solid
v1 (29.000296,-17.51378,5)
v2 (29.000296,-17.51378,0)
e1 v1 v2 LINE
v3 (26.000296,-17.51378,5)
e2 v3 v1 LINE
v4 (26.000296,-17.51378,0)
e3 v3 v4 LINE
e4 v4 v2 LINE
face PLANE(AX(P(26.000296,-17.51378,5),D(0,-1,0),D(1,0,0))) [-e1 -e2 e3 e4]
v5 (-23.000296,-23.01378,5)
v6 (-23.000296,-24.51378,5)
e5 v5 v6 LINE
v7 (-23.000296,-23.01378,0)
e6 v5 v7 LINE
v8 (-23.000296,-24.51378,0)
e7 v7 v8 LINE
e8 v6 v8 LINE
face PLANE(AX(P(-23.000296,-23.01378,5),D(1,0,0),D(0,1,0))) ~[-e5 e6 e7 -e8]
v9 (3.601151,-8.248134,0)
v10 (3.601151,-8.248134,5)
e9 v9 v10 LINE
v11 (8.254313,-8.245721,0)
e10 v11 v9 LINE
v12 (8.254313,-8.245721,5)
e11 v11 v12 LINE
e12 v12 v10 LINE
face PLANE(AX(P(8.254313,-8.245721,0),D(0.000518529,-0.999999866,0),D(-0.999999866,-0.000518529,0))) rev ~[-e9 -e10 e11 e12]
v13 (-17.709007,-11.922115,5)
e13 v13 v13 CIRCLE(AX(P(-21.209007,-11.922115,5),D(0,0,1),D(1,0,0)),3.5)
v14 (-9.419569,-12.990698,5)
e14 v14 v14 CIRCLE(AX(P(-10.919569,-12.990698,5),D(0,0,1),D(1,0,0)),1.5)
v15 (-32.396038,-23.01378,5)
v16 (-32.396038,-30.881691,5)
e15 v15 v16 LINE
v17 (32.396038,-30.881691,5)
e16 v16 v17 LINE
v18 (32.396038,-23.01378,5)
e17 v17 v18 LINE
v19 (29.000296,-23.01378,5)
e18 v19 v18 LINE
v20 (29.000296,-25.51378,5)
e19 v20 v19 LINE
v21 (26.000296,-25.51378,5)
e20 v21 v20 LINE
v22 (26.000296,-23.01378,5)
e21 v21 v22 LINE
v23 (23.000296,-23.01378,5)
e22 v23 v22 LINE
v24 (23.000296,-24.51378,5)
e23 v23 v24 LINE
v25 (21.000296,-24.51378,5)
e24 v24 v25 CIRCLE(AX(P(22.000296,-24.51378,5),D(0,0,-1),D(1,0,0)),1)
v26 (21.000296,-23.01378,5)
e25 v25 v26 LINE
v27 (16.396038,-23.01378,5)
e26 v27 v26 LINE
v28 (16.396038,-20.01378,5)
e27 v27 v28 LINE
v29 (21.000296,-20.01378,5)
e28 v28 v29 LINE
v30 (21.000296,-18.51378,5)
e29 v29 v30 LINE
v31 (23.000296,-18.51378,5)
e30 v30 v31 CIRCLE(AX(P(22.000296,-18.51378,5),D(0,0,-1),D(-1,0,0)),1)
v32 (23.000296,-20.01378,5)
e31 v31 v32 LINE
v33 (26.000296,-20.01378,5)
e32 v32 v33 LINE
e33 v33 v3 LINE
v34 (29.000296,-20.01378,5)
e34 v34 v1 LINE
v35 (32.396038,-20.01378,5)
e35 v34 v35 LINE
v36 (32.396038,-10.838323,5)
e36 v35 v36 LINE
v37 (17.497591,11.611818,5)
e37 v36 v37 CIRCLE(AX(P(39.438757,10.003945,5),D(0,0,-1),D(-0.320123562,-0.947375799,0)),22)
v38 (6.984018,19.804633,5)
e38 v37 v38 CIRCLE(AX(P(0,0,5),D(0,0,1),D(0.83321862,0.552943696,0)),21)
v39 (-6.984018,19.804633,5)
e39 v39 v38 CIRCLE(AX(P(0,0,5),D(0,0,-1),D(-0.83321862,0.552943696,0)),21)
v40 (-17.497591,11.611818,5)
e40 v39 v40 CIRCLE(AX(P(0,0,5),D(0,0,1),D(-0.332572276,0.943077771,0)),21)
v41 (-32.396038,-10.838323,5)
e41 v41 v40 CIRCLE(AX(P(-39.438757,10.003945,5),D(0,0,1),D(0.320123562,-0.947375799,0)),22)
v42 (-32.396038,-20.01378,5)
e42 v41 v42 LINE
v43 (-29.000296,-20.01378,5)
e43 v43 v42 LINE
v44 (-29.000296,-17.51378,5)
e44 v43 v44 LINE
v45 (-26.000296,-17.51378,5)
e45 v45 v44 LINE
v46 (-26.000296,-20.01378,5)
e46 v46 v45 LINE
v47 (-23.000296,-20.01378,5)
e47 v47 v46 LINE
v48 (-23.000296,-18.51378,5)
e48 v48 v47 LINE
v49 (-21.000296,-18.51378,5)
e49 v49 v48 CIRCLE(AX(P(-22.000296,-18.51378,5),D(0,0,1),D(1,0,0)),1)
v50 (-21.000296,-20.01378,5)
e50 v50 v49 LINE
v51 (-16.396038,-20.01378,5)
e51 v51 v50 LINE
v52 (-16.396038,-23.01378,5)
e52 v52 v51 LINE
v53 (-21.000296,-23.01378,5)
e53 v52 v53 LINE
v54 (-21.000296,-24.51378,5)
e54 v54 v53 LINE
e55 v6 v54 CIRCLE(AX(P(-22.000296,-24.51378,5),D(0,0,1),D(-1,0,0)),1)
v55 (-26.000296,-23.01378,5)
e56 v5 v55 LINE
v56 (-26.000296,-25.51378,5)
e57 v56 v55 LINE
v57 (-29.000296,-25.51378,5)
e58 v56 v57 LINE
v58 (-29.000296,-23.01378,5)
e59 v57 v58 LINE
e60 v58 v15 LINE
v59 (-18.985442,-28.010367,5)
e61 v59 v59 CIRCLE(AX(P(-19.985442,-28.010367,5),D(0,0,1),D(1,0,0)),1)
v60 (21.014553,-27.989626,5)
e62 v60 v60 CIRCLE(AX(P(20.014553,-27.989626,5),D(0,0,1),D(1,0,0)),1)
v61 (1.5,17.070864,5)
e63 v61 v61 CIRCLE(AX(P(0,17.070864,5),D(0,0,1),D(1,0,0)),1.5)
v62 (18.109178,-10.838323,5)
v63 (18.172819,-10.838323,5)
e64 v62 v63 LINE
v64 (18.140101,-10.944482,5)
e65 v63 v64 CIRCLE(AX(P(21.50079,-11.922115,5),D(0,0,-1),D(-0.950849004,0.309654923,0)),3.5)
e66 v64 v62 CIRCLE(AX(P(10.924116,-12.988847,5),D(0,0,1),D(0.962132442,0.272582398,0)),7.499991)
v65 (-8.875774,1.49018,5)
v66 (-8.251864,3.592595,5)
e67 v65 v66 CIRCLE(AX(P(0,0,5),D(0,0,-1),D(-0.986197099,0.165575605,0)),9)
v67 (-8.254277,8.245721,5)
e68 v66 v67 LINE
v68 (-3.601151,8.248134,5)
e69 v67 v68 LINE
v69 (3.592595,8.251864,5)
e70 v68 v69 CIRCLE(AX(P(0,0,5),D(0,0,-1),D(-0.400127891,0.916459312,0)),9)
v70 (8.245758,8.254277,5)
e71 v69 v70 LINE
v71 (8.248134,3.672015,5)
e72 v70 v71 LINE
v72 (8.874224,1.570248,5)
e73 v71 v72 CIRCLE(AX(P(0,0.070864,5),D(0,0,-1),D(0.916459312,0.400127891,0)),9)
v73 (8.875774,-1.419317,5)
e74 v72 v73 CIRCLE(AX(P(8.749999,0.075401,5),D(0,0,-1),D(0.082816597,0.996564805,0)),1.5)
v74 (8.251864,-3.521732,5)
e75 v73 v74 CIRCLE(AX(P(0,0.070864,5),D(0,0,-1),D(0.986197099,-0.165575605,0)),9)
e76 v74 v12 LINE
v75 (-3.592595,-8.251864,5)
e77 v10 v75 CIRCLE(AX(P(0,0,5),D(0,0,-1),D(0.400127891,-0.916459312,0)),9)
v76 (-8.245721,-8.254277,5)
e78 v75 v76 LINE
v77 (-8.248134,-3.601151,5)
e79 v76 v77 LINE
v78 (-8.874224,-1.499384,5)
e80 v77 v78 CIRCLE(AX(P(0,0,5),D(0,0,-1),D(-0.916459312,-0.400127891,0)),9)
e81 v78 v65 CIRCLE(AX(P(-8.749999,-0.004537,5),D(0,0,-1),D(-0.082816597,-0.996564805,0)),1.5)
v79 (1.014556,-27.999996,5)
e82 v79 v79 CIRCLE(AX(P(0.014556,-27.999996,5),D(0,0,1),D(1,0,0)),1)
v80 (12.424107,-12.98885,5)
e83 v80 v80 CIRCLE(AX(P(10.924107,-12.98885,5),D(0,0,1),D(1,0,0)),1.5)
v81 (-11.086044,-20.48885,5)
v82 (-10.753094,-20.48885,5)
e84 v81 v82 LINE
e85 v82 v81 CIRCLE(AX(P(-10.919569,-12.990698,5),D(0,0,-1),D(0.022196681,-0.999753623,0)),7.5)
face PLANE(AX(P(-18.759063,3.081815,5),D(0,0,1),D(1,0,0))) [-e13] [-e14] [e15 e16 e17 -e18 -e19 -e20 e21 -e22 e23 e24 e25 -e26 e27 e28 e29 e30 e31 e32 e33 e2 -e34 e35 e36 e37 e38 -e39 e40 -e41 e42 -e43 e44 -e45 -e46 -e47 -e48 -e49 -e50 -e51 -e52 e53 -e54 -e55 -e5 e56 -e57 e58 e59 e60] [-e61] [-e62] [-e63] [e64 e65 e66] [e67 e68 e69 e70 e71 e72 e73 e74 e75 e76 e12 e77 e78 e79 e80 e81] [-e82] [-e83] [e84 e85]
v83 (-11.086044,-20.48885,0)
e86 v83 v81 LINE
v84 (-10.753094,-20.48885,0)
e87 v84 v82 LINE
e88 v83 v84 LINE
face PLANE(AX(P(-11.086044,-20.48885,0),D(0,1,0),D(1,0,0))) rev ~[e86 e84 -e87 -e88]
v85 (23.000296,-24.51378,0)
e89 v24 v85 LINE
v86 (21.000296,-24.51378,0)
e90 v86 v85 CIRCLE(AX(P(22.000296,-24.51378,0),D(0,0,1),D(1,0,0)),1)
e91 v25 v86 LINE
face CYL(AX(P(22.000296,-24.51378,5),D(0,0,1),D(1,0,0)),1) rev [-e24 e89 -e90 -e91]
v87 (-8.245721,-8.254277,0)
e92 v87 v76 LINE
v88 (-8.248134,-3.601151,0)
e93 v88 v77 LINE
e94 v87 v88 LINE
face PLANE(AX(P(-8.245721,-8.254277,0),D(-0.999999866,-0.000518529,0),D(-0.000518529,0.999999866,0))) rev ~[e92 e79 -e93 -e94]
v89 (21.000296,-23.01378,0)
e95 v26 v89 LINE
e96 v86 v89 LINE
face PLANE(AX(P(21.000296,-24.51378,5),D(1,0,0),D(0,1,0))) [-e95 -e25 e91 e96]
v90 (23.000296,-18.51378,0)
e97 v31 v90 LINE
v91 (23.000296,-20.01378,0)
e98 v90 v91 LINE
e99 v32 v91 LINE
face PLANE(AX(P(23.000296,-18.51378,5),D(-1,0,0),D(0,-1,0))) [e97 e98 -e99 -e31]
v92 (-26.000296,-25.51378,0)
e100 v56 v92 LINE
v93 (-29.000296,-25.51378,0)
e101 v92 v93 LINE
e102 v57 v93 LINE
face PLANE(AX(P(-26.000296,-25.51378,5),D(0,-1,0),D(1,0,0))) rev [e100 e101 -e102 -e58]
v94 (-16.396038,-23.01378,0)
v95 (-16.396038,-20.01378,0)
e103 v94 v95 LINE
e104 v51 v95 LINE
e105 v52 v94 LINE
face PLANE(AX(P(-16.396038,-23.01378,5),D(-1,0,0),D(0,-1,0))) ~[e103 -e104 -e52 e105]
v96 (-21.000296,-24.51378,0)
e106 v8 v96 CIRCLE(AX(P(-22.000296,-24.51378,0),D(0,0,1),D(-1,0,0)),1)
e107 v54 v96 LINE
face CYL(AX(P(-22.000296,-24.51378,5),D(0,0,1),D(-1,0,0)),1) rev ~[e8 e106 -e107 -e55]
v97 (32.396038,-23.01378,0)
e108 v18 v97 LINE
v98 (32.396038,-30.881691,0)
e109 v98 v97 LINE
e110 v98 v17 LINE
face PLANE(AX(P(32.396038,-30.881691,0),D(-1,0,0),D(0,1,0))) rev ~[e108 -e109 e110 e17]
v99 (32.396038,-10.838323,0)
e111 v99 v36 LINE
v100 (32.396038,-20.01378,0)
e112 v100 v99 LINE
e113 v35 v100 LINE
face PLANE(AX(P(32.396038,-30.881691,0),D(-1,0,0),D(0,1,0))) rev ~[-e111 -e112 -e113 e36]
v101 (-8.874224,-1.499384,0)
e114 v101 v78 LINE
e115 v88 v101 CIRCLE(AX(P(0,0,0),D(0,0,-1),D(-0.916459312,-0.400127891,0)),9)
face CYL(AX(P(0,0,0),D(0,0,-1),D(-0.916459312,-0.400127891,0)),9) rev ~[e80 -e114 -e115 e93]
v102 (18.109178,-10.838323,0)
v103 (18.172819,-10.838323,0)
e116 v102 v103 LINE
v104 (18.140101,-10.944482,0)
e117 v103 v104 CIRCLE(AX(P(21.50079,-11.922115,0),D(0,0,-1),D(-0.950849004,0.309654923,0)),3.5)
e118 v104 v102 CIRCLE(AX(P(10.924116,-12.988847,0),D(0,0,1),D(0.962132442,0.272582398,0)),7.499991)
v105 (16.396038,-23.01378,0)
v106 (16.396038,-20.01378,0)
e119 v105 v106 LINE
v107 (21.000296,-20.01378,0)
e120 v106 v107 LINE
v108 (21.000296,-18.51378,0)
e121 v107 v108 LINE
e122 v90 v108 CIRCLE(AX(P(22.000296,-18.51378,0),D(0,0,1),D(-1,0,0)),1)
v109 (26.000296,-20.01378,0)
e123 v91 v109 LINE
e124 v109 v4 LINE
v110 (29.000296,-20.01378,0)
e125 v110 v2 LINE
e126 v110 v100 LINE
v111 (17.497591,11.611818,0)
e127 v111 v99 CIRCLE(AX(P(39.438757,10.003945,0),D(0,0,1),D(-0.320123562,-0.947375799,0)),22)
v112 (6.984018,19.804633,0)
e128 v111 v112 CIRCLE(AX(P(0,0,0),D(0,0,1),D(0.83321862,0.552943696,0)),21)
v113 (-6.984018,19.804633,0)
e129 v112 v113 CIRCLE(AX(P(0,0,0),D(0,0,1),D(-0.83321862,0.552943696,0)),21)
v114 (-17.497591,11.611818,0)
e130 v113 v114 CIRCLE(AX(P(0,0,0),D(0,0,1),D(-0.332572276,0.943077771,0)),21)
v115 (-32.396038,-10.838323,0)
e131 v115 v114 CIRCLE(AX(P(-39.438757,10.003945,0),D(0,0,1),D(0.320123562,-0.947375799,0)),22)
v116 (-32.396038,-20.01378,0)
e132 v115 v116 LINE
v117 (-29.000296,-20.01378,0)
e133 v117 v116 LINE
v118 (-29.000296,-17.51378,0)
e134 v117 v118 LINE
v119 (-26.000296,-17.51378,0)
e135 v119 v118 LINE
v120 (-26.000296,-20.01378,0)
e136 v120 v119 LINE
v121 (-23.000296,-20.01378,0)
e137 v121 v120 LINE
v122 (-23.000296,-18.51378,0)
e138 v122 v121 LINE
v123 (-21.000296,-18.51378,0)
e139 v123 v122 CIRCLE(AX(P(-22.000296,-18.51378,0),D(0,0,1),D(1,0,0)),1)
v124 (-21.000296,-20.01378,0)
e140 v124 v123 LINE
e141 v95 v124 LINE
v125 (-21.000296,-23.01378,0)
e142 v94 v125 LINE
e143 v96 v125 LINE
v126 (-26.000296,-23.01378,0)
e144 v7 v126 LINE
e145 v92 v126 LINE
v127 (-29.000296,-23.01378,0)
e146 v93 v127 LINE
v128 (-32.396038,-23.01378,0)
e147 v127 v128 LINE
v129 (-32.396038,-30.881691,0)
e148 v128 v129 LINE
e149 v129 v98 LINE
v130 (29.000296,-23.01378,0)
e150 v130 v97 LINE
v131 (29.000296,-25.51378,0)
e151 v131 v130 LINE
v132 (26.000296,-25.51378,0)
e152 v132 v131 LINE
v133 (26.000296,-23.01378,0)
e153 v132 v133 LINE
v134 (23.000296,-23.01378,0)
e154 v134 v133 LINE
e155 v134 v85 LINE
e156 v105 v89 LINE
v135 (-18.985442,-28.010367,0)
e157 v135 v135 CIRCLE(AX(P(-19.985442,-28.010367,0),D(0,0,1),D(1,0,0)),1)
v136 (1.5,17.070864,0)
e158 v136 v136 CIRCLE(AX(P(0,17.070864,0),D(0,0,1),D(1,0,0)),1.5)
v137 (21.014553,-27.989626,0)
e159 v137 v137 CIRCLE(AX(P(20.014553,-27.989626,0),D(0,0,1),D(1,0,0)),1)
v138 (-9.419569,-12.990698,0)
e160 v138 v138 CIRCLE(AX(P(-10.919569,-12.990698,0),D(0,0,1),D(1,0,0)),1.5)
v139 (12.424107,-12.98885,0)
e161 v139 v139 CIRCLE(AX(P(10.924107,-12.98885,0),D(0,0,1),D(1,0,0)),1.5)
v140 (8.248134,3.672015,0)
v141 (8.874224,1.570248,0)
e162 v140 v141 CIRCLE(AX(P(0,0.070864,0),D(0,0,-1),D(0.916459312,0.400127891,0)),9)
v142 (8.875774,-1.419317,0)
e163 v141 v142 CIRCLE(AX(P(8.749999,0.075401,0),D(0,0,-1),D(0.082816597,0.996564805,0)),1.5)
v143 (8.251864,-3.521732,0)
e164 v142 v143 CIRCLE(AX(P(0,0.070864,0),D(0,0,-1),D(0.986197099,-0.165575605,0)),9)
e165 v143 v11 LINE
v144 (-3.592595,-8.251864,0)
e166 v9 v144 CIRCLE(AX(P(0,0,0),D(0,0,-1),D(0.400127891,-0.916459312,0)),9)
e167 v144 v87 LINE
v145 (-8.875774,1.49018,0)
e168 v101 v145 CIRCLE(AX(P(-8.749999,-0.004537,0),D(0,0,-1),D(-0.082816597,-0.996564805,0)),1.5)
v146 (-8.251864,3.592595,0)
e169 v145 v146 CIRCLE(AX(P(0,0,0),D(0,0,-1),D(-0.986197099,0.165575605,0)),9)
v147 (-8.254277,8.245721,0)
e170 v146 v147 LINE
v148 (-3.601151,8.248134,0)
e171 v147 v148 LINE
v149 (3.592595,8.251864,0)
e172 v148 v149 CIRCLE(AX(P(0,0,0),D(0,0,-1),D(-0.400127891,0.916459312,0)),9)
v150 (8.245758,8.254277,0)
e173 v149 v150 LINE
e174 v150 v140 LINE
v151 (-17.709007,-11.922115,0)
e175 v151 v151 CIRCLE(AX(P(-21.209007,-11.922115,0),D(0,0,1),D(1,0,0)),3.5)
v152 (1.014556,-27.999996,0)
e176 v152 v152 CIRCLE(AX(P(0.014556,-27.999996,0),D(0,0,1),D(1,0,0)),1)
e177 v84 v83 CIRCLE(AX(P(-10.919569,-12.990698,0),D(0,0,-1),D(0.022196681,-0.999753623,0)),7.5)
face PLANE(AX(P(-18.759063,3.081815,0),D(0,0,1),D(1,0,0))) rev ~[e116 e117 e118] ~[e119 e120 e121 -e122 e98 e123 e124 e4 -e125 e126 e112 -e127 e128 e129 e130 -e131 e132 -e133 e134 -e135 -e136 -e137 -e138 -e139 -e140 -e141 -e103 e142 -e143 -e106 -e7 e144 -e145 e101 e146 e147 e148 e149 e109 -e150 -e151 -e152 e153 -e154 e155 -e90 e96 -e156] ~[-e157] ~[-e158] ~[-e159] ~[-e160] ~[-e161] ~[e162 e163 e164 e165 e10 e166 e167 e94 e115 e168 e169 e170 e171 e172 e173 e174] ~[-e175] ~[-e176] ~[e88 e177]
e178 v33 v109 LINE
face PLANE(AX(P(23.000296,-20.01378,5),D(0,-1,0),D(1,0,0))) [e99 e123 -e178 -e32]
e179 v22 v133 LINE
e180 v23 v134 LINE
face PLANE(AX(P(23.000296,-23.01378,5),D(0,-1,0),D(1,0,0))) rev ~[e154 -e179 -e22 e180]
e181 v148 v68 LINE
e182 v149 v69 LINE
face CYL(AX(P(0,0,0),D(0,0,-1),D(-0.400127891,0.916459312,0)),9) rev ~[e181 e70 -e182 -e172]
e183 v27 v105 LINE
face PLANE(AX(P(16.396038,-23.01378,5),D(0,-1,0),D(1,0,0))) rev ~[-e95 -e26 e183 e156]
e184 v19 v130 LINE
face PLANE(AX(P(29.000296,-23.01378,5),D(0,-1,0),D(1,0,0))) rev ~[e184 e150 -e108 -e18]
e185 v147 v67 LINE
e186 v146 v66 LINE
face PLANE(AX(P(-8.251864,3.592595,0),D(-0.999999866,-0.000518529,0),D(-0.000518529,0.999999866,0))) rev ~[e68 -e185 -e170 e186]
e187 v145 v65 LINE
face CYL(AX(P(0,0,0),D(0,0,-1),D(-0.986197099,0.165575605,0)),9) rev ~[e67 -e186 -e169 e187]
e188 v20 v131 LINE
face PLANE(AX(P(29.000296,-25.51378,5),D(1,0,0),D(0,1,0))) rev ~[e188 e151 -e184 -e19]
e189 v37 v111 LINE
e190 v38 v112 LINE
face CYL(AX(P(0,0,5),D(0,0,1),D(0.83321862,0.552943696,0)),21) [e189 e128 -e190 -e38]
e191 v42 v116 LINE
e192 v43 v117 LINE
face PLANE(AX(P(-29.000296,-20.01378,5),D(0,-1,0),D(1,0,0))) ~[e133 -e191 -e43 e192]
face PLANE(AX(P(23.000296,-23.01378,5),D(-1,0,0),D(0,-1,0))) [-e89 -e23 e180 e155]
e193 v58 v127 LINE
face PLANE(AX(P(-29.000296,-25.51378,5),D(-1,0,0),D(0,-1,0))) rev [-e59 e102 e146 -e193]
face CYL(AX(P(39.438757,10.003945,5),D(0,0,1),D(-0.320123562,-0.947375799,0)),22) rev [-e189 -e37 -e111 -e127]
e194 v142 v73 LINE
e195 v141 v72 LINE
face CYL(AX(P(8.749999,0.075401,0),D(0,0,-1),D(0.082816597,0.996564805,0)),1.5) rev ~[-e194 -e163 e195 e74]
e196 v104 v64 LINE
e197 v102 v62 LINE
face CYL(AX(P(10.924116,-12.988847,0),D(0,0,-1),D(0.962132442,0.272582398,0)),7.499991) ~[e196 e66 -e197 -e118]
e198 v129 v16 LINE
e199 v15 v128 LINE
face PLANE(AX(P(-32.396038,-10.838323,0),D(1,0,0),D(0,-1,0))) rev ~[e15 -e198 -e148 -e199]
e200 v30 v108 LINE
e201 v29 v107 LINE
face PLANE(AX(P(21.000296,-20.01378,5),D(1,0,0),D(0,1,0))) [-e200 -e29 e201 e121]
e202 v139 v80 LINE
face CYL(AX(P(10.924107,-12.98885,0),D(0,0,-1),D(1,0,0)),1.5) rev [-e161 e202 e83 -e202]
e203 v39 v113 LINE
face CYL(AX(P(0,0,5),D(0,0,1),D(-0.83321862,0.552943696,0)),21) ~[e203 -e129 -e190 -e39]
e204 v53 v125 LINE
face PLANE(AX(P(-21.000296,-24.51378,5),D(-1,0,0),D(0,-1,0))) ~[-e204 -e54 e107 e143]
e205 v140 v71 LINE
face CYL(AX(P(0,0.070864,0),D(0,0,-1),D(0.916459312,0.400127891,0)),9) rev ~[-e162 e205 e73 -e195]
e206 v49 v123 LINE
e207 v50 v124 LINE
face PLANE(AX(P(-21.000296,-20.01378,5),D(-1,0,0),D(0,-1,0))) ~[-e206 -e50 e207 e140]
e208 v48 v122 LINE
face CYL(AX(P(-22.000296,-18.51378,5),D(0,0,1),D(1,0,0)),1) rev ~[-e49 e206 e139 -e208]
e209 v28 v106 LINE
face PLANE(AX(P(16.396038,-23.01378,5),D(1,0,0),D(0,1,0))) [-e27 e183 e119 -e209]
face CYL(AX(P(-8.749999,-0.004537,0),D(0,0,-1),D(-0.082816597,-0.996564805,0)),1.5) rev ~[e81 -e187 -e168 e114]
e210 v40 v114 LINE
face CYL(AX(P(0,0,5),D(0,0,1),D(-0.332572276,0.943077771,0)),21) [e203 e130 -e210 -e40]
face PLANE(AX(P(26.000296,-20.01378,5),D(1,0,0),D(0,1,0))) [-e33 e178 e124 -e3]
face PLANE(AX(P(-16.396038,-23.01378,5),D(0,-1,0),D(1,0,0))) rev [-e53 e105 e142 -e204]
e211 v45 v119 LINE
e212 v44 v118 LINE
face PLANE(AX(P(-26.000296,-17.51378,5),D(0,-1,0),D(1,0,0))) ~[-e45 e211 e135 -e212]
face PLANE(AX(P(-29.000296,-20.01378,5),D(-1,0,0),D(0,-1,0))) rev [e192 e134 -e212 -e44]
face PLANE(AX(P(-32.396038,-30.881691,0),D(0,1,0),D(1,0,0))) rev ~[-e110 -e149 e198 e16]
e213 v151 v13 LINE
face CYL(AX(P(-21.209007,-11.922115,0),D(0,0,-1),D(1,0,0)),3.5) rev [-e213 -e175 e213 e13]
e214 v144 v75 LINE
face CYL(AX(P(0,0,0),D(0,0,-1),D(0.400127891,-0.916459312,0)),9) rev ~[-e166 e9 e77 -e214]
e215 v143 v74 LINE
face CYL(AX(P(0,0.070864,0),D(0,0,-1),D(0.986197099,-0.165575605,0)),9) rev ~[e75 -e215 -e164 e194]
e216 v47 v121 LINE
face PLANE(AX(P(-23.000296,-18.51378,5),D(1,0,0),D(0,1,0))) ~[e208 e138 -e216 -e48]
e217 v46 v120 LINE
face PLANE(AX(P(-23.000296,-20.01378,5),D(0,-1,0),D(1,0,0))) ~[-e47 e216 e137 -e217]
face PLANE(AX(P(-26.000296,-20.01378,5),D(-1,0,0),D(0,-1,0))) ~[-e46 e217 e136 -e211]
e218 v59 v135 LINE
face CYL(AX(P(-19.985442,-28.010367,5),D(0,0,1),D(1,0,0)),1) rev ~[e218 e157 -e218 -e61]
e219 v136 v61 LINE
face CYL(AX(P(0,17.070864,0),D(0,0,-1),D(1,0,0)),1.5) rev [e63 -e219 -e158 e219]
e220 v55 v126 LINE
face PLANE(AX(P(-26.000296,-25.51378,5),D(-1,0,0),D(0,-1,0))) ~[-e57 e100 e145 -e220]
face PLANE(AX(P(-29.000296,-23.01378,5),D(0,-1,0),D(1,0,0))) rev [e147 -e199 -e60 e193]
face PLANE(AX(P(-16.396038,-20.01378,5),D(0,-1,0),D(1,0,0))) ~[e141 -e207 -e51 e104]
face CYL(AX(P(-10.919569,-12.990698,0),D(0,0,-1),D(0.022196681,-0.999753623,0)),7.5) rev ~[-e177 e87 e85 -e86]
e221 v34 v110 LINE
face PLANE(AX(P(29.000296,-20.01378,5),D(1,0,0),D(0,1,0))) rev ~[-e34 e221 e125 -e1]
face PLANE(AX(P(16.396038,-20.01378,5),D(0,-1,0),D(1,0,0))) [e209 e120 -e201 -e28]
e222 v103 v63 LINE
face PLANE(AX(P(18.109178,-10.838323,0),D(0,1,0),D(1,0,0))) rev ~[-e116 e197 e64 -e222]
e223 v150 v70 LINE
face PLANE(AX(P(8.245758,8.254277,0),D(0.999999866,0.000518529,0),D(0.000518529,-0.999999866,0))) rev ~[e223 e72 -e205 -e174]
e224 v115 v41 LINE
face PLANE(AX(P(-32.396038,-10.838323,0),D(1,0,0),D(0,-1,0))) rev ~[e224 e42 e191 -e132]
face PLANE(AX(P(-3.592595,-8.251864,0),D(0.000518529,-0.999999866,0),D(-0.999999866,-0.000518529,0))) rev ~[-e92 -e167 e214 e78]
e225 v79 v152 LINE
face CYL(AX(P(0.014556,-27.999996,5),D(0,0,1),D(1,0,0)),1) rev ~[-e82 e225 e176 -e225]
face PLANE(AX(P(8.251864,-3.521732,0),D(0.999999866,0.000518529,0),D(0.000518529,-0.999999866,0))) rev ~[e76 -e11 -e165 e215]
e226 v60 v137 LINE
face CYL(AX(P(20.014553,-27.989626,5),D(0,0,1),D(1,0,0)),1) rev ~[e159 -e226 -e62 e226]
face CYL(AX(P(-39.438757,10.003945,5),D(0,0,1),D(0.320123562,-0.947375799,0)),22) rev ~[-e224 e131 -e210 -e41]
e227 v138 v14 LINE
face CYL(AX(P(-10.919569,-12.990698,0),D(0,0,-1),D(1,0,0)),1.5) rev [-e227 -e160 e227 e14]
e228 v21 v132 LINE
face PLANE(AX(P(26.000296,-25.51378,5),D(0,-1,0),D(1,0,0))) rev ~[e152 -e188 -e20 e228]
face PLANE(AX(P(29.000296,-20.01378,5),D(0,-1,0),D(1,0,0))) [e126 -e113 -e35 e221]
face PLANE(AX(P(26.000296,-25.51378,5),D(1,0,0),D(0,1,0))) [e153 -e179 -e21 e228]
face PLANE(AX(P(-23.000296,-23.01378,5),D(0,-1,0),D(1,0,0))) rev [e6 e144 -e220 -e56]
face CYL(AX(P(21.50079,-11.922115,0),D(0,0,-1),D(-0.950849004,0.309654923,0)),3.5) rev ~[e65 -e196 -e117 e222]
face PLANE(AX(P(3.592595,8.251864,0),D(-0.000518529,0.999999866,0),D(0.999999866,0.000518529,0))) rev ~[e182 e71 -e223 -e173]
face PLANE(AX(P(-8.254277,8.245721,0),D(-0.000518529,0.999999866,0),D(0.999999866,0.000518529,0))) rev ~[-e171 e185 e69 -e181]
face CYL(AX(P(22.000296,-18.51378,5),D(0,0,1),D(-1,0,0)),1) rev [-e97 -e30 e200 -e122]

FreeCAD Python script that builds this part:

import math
import FreeCAD as App
import Part
import Sketcher
Q = App.Units.Quantity


def add_polygon(sketch, points):
    """Adds a closed chain of lines whose ends are joined by coincident constraints."""
    first, n = sketch.GeometryCount, len(points)
    for a, b in zip(points, points[1:] + points[:1]):
        sketch.addGeometry(Part.LineSegment(App.Vector(*a, 0), App.Vector(*b, 0)), False)
    for i in range(n):
        sketch.addConstraint(Sketcher.Constraint("Coincident", first + i, 2, first + (i + 1) % n, 1))

doc = App.newDocument("Part")
body = doc.addObject("PartDesign::Body", "Body")

# Sketch on XY plane
sketch1 = body.newObject("Sketcher::SketchObject", "Sketch")
sketch1.AttachmentSupport = (doc.getObject("XY_Plane"), [""])
sketch1.MapMode = "FlatFace"
sketch1.addGeometry([
    Part.LineSegment(App.Vector(16.68, -6.87, 0), App.Vector(7.05, 19.63, 0)),  # 0
    Part.ArcOfCircle(Part.Circle(App.Vector(0, 17.07, 0), App.Vector(0, 0, 1), 7.5), math.radians(20), math.radians(160)),  # 1
    Part.LineSegment(App.Vector(-7.05, 19.63, 0), App.Vector(-16.6, -6.67, 0)),  # 2
    Part.ArcOfCircle(Part.Circle(App.Vector(-21.21, -11.92, 0), App.Vector(0, 0, 1), 6.99), math.radians(49), math.radians(171)),  # 3
    Part.LineSegment(App.Vector(-28.11, -10.84, 0), App.Vector(-32.4, -10.84, 0)),  # 4
    Part.LineSegment(App.Vector(-32.4, -10.84, 0), App.Vector(-32.4, -30.88, 0)),  # 5
    Part.LineSegment(App.Vector(-32.4, -30.88, 0), App.Vector(32.4, -30.88, 0)),  # 6
    Part.LineSegment(App.Vector(32.4, -30.88, 0), App.Vector(32.4, -10.84, 0)),  # 7
    Part.LineSegment(App.Vector(32.4, -10.84, 0), App.Vector(28.4, -10.84, 0)),  # 8
    Part.ArcOfCircle(Part.Circle(App.Vector(21.5, -11.92, 0), App.Vector(0, 0, 1), 6.99), math.radians(9), math.radians(134)),  # 9
    Part.Circle(App.Vector(-21.21, -11.92, 0), App.Vector(0, 0, 1), 3.5),  # 10
    Part.LineSegment(App.Vector(-11.09, -20.49, 0), App.Vector(-10.75, -20.49, 0)),  # 11
    Part.ArcOfCircle(Part.Circle(App.Vector(-10.92, -12.99, 0), App.Vector(0, 0, 1), 7.5), math.radians(-91.27), math.radians(-88.73)),  # 12
    Part.Circle(App.Vector(-10.92, -12.99, 0), App.Vector(0, 0, 1), 1.5),  # 13
    Part.Circle(App.Vector(10.92, -12.99, 0), App.Vector(0, 0, 1), 1.5),  # 14
    Part.ArcOfCircle(Part.Circle(App.Vector(10.92, -12.99, 0), App.Vector(0, 0, 1), 7.5), math.radians(15.82), math.radians(16.66)),  # 15
    Part.LineSegment(App.Vector(18.11, -10.84, 0), App.Vector(18.17, -10.84, 0)),  # 16
    Part.ArcOfCircle(Part.Circle(App.Vector(21.5, -11.92, 0), App.Vector(0, 0, 1), 3.5), math.radians(164), math.radians(522)),  # 17
    Part.ArcOfCircle(Part.Circle(App.Vector(0, 0, 0), App.Vector(0, 0, 1), 9), math.radians(66), math.radians(114)),  # 18
    Part.LineSegment(App.Vector(3.59, 8.25, 0), App.Vector(8.25, 8.25, 0)),  # 19
    Part.LineSegment(App.Vector(8.25, 8.25, 0), App.Vector(8.25, 3.67, 0)),  # 20
    Part.ArcOfCircle(Part.Circle(App.Vector(0, 0.07, 0), App.Vector(0, 0, 1), 9), math.radians(9.59), math.radians(23.59)),  # 21
    Part.ArcOfCircle(Part.Circle(App.Vector(8.75, 0.08, 0), App.Vector(0, 0, 1), 1.5), math.radians(-85), math.radians(85)),  # 22
    Part.ArcOfCircle(Part.Circle(App.Vector(0, 0.07, 0), App.Vector(0, 0, 1), 9), math.radians(-23.53), math.radians(-9.53)),  # 23
    Part.LineSegment(App.Vector(8.25, -3.52, 0), App.Vector(8.25, -8.25, 0)),  # 24
    Part.LineSegment(App.Vector(8.25, -8.25, 0), App.Vector(3.6, -8.25, 0)),  # 25
    Part.ArcOfCircle(Part.Circle(App.Vector(0, 0, 0), App.Vector(0, 0, 1), 9), math.radians(-114), math.radians(-66)),  # 26
    Part.LineSegment(App.Vector(-3.59, -8.25, 0), App.Vector(-8.25, -8.25, 0)),  # 27
    Part.LineSegment(App.Vector(-8.25, -8.25, 0), App.Vector(-8.25, -3.6, 0)),  # 28
    Part.ArcOfCircle(Part.Circle(App.Vector(0, 0, 0), App.Vector(0, 0, 1), 9), math.radians(-170.41), math.radians(-156.41)),  # 29
    Part.ArcOfCircle(Part.Circle(App.Vector(-8.75, 0, 0), App.Vector(0, 0, 1), 1.5), math.radians(95), math.radians(265)),  # 30
    Part.ArcOfCircle(Part.Circle(App.Vector(0, 0, 0), App.Vector(0, 0, 1), 9), math.radians(156.47), math.radians(170.47)),  # 31
    Part.LineSegment(App.Vector(-8.25, 3.59, 0), App.Vector(-8.25, 8.25, 0)),  # 32
    Part.LineSegment(App.Vector(-8.25, 8.25, 0), App.Vector(-3.6, 8.25, 0)),  # 33
    Part.Circle(App.Vector(0, 17.07, 0), App.Vector(0, 0, 1), 1.5),  # 34
], False)
sketch1.addConstraint([
    Sketcher.Constraint("Tangent", 0, 2, 1, 1),
    Sketcher.Constraint("Tangent", 1, 2, 2, 1),
    Sketcher.Constraint("Coincident", 2, 2, 3, 1),
    Sketcher.Constraint("Coincident", 3, 2, 4, 1),
    Sketcher.Constraint("Coincident", 4, 2, 5, 1),
    Sketcher.Constraint("Coincident", 5, 2, 6, 1),
    Sketcher.Constraint("Coincident", 6, 2, 7, 1),
    Sketcher.Constraint("Coincident", 7, 2, 8, 1),
    Sketcher.Constraint("Coincident", 8, 2, 9, 1),
    Sketcher.Constraint("Coincident", 9, 2, 0, 1),
    Sketcher.Constraint("Coincident", 11, 1, 12, 1),
    Sketcher.Constraint("Coincident", 12, 2, 11, 2),
    Sketcher.Constraint("Coincident", 15, 2, 16, 1),
    Sketcher.Constraint("Coincident", 16, 2, 17, 2),
    Sketcher.Constraint("Coincident", 17, 1, 15, 1),
    Sketcher.Constraint("Coincident", 18, 1, 19, 1),
    Sketcher.Constraint("Coincident", 19, 2, 20, 1),
    Sketcher.Constraint("Coincident", 20, 2, 21, 2),
    Sketcher.Constraint("Coincident", 21, 1, 22, 2),
    Sketcher.Constraint("Coincident", 22, 1, 23, 2),
    Sketcher.Constraint("Coincident", 23, 1, 24, 1),
    Sketcher.Constraint("Coincident", 24, 2, 25, 1),
    Sketcher.Constraint("Coincident", 25, 2, 26, 2),
    Sketcher.Constraint("Coincident", 26, 1, 27, 1),
    Sketcher.Constraint("Coincident", 27, 2, 28, 1),
    Sketcher.Constraint("Coincident", 28, 2, 29, 2),
    Sketcher.Constraint("Coincident", 29, 1, 30, 2),
    Sketcher.Constraint("Coincident", 30, 1, 31, 2),
    Sketcher.Constraint("Coincident", 31, 1, 32, 1),
    Sketcher.Constraint("Coincident", 32, 2, 33, 1),
    Sketcher.Constraint("Coincident", 33, 2, 18, 2),
    Sketcher.Constraint("Horizontal", 4),
    Sketcher.Constraint("Vertical", 5),
    Sketcher.Constraint("Horizontal", 6),
    Sketcher.Constraint("Vertical", 7),
    Sketcher.Constraint("Horizontal", 8),
    Sketcher.Constraint("Horizontal", 11),
    Sketcher.Constraint("Horizontal", 16),
    Sketcher.Constraint("Coincident", 18, 3, -1, 1),
    Sketcher.Constraint("Coincident", 26, 3, -1, 1),
    Sketcher.Constraint("Coincident", 29, 3, -1, 1),
    Sketcher.Constraint("Coincident", 31, 3, -1, 1),
    Sketcher.Constraint("Coincident", 10, 3, 3, 3),
    Sketcher.Constraint("Coincident", 13, 3, 12, 3),
    Sketcher.Constraint("Coincident", 15, 3, 14, 3),
    Sketcher.Constraint("Coincident", 17, 3, 9, 3),
    Sketcher.Constraint("Coincident", 23, 3, 21, 3),
    Sketcher.Constraint("Coincident", 34, 3, 1, 3),
    Sketcher.Constraint("Equal", 3, 9),
    Sketcher.Constraint("Equal", 1, 12),
    Sketcher.Constraint("Equal", 13, 14),
    Sketcher.Constraint("Equal", 10, 17),
    Sketcher.Constraint("Equal", 18, 21),
    Sketcher.Constraint("Equal", 14, 22),
    Sketcher.Constraint("Equal", 21, 23),
    Sketcher.Constraint("Equal", 23, 26),
    Sketcher.Constraint("Equal", 26, 29),
    Sketcher.Constraint("Equal", 22, 30),
    Sketcher.Constraint("Equal", 29, 31),
    Sketcher.Constraint("Equal", 30, 34),
    Sketcher.Constraint("Symmetric", 4, 2, 7, 2, -2),
    Sketcher.Constraint("PointOnObject", 1, 3, -2),
    Sketcher.Constraint("PointOnObject", 21, 3, -2),
    Sketcher.Constraint("Perpendicular", 19, 20),
    Sketcher.Constraint("Parallel", 20, 24),
    Sketcher.Constraint("Perpendicular", 24, 25),
    Sketcher.Constraint("Parallel", 25, 27),
    Sketcher.Constraint("Perpendicular", 27, 28),
    Sketcher.Constraint("Parallel", 28, 32),
    Sketcher.Constraint("Perpendicular", 32, 33),
    Sketcher.Constraint("Horizontal", 3, 3, 9, 3),
    Sketcher.Constraint("Horizontal", 8, 2, 15, 2),
    Sketcher.Constraint("Equal", 19, 25),
    Sketcher.Constraint("Equal", 27, 28),
    Sketcher.Constraint("Equal", 28, 32),
    Sketcher.Constraint("Equal", 32, 33),
    Sketcher.Constraint("Diameter", 10, Q("7 mm")),
    Sketcher.Constraint("Diameter", 13, Q("3 mm")),
    Sketcher.Constraint("Radius", 18, Q("9 mm")),
    Sketcher.Constraint("Radius", 1, Q("7.5 mm")),
    Sketcher.Constraint("DistanceY", 21, 3, 1, 3, Q("17 mm")),
    Sketcher.Constraint("DistanceX", -1, 1, 22, 3, Q("8.749999 mm")),
    Sketcher.Constraint("DistanceX", 30, 3, -1, 1, Q("8.749999 mm")),
    Sketcher.Constraint("Radius", 3, Q("6.987319 mm")),
    Sketcher.Constraint("Radius", 15, Q("7.499991 mm")),
    Sketcher.Constraint("DistanceY", 21, 3, 18, 1, Q("8.181 mm")),
    Sketcher.Constraint("DistanceX", 11, 1, 11, 2, Q("0.33295 mm")),
    Sketcher.Constraint("DistanceX", 16, 1, 16, 2, Q("0.063641 mm")),
    Sketcher.Constraint("DistanceY", 5, 2, 5, 1, Q("20.043368 mm")),
    Sketcher.Constraint("DistanceY", -1, 1, 22, 3, Q("0.075401 mm")),
    Sketcher.Constraint("DistanceY", 2, 2, -1, 1, Q("6.668301 mm")),
    Sketcher.Constraint("DistanceX", -1, 1, 17, 1, Q("18.140101 mm")),
    Sketcher.Constraint("DistanceY", 30, 3, 23, 3, Q("0.075401 mm")),
    Sketcher.Constraint("Distance", 2, Q("27.981072 mm")),
    Sketcher.Constraint("Distance", 24, Q("4.72399 mm")),
    Sketcher.Constraint("DistanceX", 4, 2, 4, 1, Q("4.284276 mm")),
    Sketcher.Constraint("DistanceX", 6, 1, 6, 2, Q("64.792076 mm")),
    Sketcher.Constraint("DistanceX", 8, 2, 8, 1, Q("3.992493 mm")),
    Sketcher.Constraint("DistanceX", 12, 3, -1, 1, Q("10.919569 mm")),
    Sketcher.Constraint("DistanceY", 14, 3, -1, 1, Q("12.98885 mm")),
    Sketcher.Constraint("DistanceY", -1, 1, 0, 2, Q("19.632549 mm")),
    Sketcher.Constraint("DistanceY", -1, 1, 1, 2, Q("19.63147 mm")),
    Sketcher.Constraint("DistanceY", 11, 1, -1, 1, Q("20.48885 mm")),
    Sketcher.Constraint("DistanceY", 23, 1, -1, 1, Q("3.521732 mm")),
    Sketcher.Constraint("DistanceX", -1, 1, 25, 2, Q("3.601151 mm")),
    Sketcher.Constraint("DistanceX", 27, 2, -1, 1, Q("8.245721 mm")),
])
pad1 = body.newObject("PartDesign::Pad", "Pad")
pad1.Profile = sketch1
pad1.Length = 5

# Sketch on XY plane
sketch2 = body.newObject("Sketcher::SketchObject", "Sketch001")
sketch2.AttachmentSupport = (doc.getObject("XY_Plane"), [""])
sketch2.MapMode = "FlatFace"
sketch2.AttachmentOffset = App.Placement(App.Vector(0, 0, 5), App.Rotation())
sketch2.addGeometry([
    Part.LineSegment(App.Vector(26, -23, 0), App.Vector(26, -25.5, 0)),  # 0
    Part.LineSegment(App.Vector(26, -25.5, 0), App.Vector(29, -25.5, 0)),  # 1
    Part.LineSegment(App.Vector(29, -25.5, 0), App.Vector(29, -23, 0)),  # 2
    Part.LineSegment(App.Vector(29, -23, 0), App.Vector(32.4, -23, 0)),  # 3
    Part.LineSegment(App.Vector(32.4, -23, 0), App.Vector(32.4, -20, 0)),  # 4
    Part.LineSegment(App.Vector(32.4, -20, 0), App.Vector(29, -20, 0)),  # 5
    Part.LineSegment(App.Vector(29, -20, 0), App.Vector(29, -17.5, 0)),  # 6
    Part.LineSegment(App.Vector(29, -17.5, 0), App.Vector(26, -17.5, 0)),  # 7
    Part.LineSegment(App.Vector(26, -17.5, 0), App.Vector(26, -20, 0)),  # 8
    Part.LineSegment(App.Vector(26, -20, 0), App.Vector(23, -20, 0)),  # 9
    Part.LineSegment(App.Vector(23, -20, 0), App.Vector(23, -18.5, 0)),  # 10
    Part.ArcOfCircle(Part.Circle(App.Vector(22, -18.5, 0), App.Vector(0, 0, 1), 1), math.radians(0), math.radians(180)),  # 11
    Part.LineSegment(App.Vector(21, -18.5, 0), App.Vector(21, -20, 0)),  # 12
    Part.LineSegment(App.Vector(21, -20, 0), App.Vector(16.4, -20, 0)),  # 13
    Part.LineSegment(App.Vector(16.4, -20, 0), App.Vector(16.4, -23, 0)),  # 14
    Part.LineSegment(App.Vector(16.4, -23, 0), App.Vector(21, -23, 0)),  # 15
    Part.LineSegment(App.Vector(21, -23, 0), App.Vector(21, -24.5, 0)),  # 16
    Part.ArcOfCircle(Part.Circle(App.Vector(22, -24.5, 0), App.Vector(0, 0, 1), 1), math.radians(180), math.radians(360)),  # 17
    Part.LineSegment(App.Vector(23, -24.5, 0), App.Vector(23, -23, 0)),  # 18
    Part.LineSegment(App.Vector(23, -23, 0), App.Vector(26, -23, 0)),  # 19
], False)
sketch2.addConstraint([
    Sketcher.Constraint("Coincident", 0, 2, 1, 1),
    Sketcher.Constraint("Coincident", 1, 2, 2, 1),
    Sketcher.Constraint("Coincident", 2, 2, 3, 1),
    Sketcher.Constraint("Coincident", 3, 2, 4, 1),
    Sketcher.Constraint("Coincident", 4, 2, 5, 1),
    Sketcher.Constraint("Coincident", 5, 2, 6, 1),
    Sketcher.Constraint("Coincident", 6, 2, 7, 1),
    Sketcher.Constraint("Coincident", 7, 2, 8, 1),
    Sketcher.Constraint("Coincident", 8, 2, 9, 1),
    Sketcher.Constraint("Coincident", 9, 2, 10, 1),
    Sketcher.Constraint("Tangent", 10, 2, 11, 1),
    Sketcher.Constraint("Tangent", 11, 2, 12, 1),
    Sketcher.Constraint("Coincident", 12, 2, 13, 1),
    Sketcher.Constraint("Coincident", 13, 2, 14, 1),
    Sketcher.Constraint("Coincident", 14, 2, 15, 1),
    Sketcher.Constraint("Coincident", 15, 2, 16, 1),
    Sketcher.Constraint("Tangent", 16, 2, 17, 1),
    Sketcher.Constraint("Tangent", 17, 2, 18, 1),
    Sketcher.Constraint("Coincident", 18, 2, 19, 1),
    Sketcher.Constraint("Coincident", 19, 2, 0, 1),
    Sketcher.Constraint("Vertical", 0),
    Sketcher.Constraint("Horizontal", 1),
    Sketcher.Constraint("Vertical", 2),
    Sketcher.Constraint("Horizontal", 3),
    Sketcher.Constraint("Vertical", 4),
    Sketcher.Constraint("Horizontal", 5),
    Sketcher.Constraint("Vertical", 6),
    Sketcher.Constraint("Horizontal", 7),
    Sketcher.Constraint("Vertical", 8),
    Sketcher.Constraint("Horizontal", 9),
    Sketcher.Constraint("Vertical", 10),
    Sketcher.Constraint("Vertical", 12),
    Sketcher.Constraint("Horizontal", 13),
    Sketcher.Constraint("Vertical", 14),
    Sketcher.Constraint("Horizontal", 15),
    Sketcher.Constraint("Vertical", 16),
    Sketcher.Constraint("Vertical", 18),
    Sketcher.Constraint("Horizontal", 19),
    Sketcher.Constraint("Equal", 11, 17),
    Sketcher.Constraint("Horizontal", 5, 2, 8, 2),
    Sketcher.Constraint("Horizontal", 9, 2, 12, 2),
    Sketcher.Constraint("Horizontal", 3, 2, 14, 2),
    Sketcher.Constraint("Horizontal", 15, 2, 18, 2),
    Sketcher.Constraint("Vertical", 11, 3, 17, 3),
    Sketcher.Constraint("Vertical", 2, 2, 5, 2),
    Sketcher.Constraint("Vertical", 0, 2, 7, 2),
    Sketcher.Constraint("Equal", 7, 9),
    Sketcher.Constraint("Equal", 19, 4),
    Sketcher.Constraint("Equal", 2, 6),
    Sketcher.Constraint("Equal", 12, 16),
    Sketcher.Constraint("Radius", 11, Q("1 mm")),
    Sketcher.Constraint("DistanceX", 1, 1, 1, 2, Q("3 mm")),
    Sketcher.Constraint("DistanceY", 0, 2, 0, 1, Q("2.5 mm")),
    Sketcher.Constraint("DistanceY", 10, 1, 10, 2, Q("1.5 mm")),
    Sketcher.Constraint("DistanceX", 3, 1, 3, 2, Q("3.395742 mm")),
    Sketcher.Constraint("DistanceX", 13, 2, 13, 1, Q("4.604258 mm")),
    Sketcher.Constraint("DistanceY", 11, 3, -1, 1, Q("18.51378 mm")),
    Sketcher.Constraint("DistanceX", -1, 1, 3, 2, Q("32.396038 mm")),
])
pocket1 = body.newObject("PartDesign::Pocket", "Pocket")
pocket1.Profile = sketch2
pocket1.Length = 10
doc.recompute()

mirrored = body.newObject("PartDesign::Mirrored", "Mirrored")
mirrored.Originals = [pocket1]
mirrored.MirrorPlane = (doc.getObject("YZ_Plane"), [""])
body.Tip = mirrored

# Sketch on XY plane
sketch3 = body.newObject("Sketcher::SketchObject", "Sketch002")
sketch3.AttachmentSupport = (doc.getObject("XY_Plane"), [""])
sketch3.MapMode = "FlatFace"
sketch3.AttachmentOffset = App.Placement(App.Vector(0, 0, 5), App.Rotation())
add_polygon(sketch3, [(-42, 34), (-42, -40), (42, -40), (42, 34)])  # lines 0-3
sketch3.addGeometry(Part.LineSegment(App.Vector(-32, -31, 0), App.Vector(-32, -11, 0)), False)  # 4
sketch3.addGeometry(Part.LineSegment(App.Vector(-32, -11, 0), App.Vector(-17, 12, 0)), False)  # 5
sketch3.addGeometry(Part.ArcOfCircle(Part.Circle(App.Vector(0, 0, 0), App.Vector(0, 0, 1), 21), math.radians(34), math.radians(146)), False)  # 6
sketch3.addGeometry(Part.LineSegment(App.Vector(17, 12, 0), App.Vector(32, -11, 0)), False)  # 7
sketch3.addGeometry(Part.LineSegment(App.Vector(32, -11, 0), App.Vector(32, -31, 0)), False)  # 8
sketch3.addGeometry(Part.LineSegment(App.Vector(32, -31, 0), App.Vector(-32, -31, 0)), False)  # 9
sketch3.addConstraint([
    Sketcher.Constraint("Coincident", 4, 2, 5, 1),
    Sketcher.Constraint("Tangent", 5, 2, 6, 2),
    Sketcher.Constraint("Tangent", 6, 1, 7, 1),
    Sketcher.Constraint("Coincident", 7, 2, 8, 1),
    Sketcher.Constraint("Coincident", 8, 2, 9, 1),
    Sketcher.Constraint("Coincident", 9, 2, 4, 1),
    Sketcher.Constraint("Vertical", 0),
    Sketcher.Constraint("Horizontal", 1),
    Sketcher.Constraint("Vertical", 2),
    Sketcher.Constraint("Horizontal", 3),
    Sketcher.Constraint("Vertical", 4),
    Sketcher.Constraint("Vertical", 8),
    Sketcher.Constraint("Horizontal", 9),
    Sketcher.Constraint("Coincident", 6, 3, -1, 1),
    Sketcher.Constraint("Symmetric", 4, 2, 7, 2, -2),
    Sketcher.Constraint("Radius", 6, Q("21 mm")),
    Sketcher.Constraint("DistanceX", 1, 1, 1, 2, Q("83.878 mm")),
    Sketcher.Constraint("DistanceY", 0, 2, 0, 1, Q("74.539 mm")),
    Sketcher.Constraint("DistanceX", 0, 2, -1, 1, Q("41.939 mm")),
    Sketcher.Constraint("DistanceY", 0, 2, -1, 1, Q("40.425 mm")),
    Sketcher.Constraint("DistanceY", 4, 1, 4, 2, Q("20.043368 mm")),
    Sketcher.Constraint("DistanceX", 9, 2, 9, 1, Q("64.792076 mm")),
    Sketcher.Constraint("DistanceX", 5, 2, -1, 1, Q("17.497591 mm")),
])
pocket2 = body.newObject("PartDesign::Pocket", "Pocket001")
pocket2.Profile = sketch3
pocket2.Length = 10

# Sketch on XY plane
sketch4 = body.newObject("Sketcher::SketchObject", "Sketch003")
sketch4.AttachmentSupport = (doc.getObject("XY_Plane"), [""])
sketch4.MapMode = "FlatFace"
sketch4.AttachmentOffset = App.Placement(App.Vector(0, 0, 5), App.Rotation())
sketch4.addGeometry([
    Part.LineSegment(App.Vector(-17.5, 11.61, 0), App.Vector(-32.4, -10.84, 0)),  # 0
    Part.LineSegment(App.Vector(-32.4, -10.84, 0), App.Vector(-28.11, -10.84, 0)),  # 1
    Part.ArcOfCircle(Part.Circle(App.Vector(-21.21, -11.92, 0), App.Vector(0, 0, 1), 6.99), math.radians(49), math.radians(171)),  # 2
    Part.LineSegment(App.Vector(-16.6, -6.67, 0), App.Vector(-7.05, 19.63, 0)),  # 3
    Part.LineSegment(App.Vector(-7.05, 19.63, 0), App.Vector(-6.98, 19.8, 0)),  # 4
    Part.ArcOfCircle(Part.Circle(App.Vector(0, 0, 0), App.Vector(0, 0, 1), 21), math.radians(109), math.radians(146)),  # 5
    Part.ArcOfCircle(Part.Circle(App.Vector(0, 0, 0), App.Vector(0, 0, 1), 21), math.radians(34), math.radians(71)),  # 6
    Part.LineSegment(App.Vector(6.98, 19.8, 0), App.Vector(7.05, 19.63, 0)),  # 7
    Part.LineSegment(App.Vector(7.05, 19.63, 0), App.Vector(16.68, -6.87, 0)),  # 8
    Part.ArcOfCircle(Part.Circle(App.Vector(21.5, -11.92, 0), App.Vector(0, 0, 1), 6.99), math.radians(9), math.radians(134)),  # 9
    Part.LineSegment(App.Vector(28.4, -10.84, 0), App.Vector(32.4, -10.84, 0)),  # 10
    Part.LineSegment(App.Vector(32.4, -10.84, 0), App.Vector(17.5, 11.61, 0)),  # 11
], False)
sketch4.addConstraint([
    Sketcher.Constraint("Coincident", 0, 2, 1, 1),
    Sketcher.Constraint("Coincident", 1, 2, 2, 2),
    Sketcher.Constraint("Coincident", 2, 1, 3, 1),
    Sketcher.Constraint("Coincident", 3, 2, 4, 1),
    Sketcher.Constraint("Coincident", 4, 2, 5, 1),
    Sketcher.Constraint("Tangent", 5, 2, 0, 1),
    Sketcher.Constraint("Coincident", 6, 2, 7, 1),
    Sketcher.Constraint("Coincident", 7, 2, 8, 1),
    Sketcher.Constraint("Coincident", 8, 2, 9, 2),
    Sketcher.Constraint("Coincident", 9, 1, 10, 1),
    Sketcher.Constraint("Coincident", 10, 2, 11, 1),
    Sketcher.Constraint("Tangent", 11, 2, 6, 1),
    Sketcher.Constraint("Horizontal", 1),
    Sketcher.Constraint("Horizontal", 10),
    Sketcher.Constraint("Coincident", 5, 3, -1, 1),
    Sketcher.Constraint("Coincident", 6, 3, -1, 1),
    Sketcher.Constraint("Equal", 5, 6),
    Sketcher.Constraint("Equal", 2, 9),
    Sketcher.Constraint("Symmetric", 0, 2, 10, 2, -2),
    Sketcher.Constraint("Horizontal", 2, 3, 9, 3),
    Sketcher.Constraint("Horizontal", 4, 2, 6, 2),
    Sketcher.Constraint("Radius", 5, Q("21 mm")),
    Sketcher.Constraint("Angle", 4, Q("69.329983 deg")),
    Sketcher.Constraint("Radius", 2, Q("6.987319 mm")),
    Sketcher.Constraint("DistanceY", 2, 1, -1, 1, Q("6.668301 mm")),
    Sketcher.Constraint("Distance", 3, Q("27.981072 mm")),
    Sketcher.Constraint("Distance", 7, Q("0.183928 mm")),
    Sketcher.Constraint("DistanceX", 1, 1, 1, 2, Q("4.284276 mm")),
    Sketcher.Constraint("DistanceX", 10, 1, 10, 2, Q("3.992493 mm")),
    Sketcher.Constraint("DistanceX", -1, 1, 9, 3, Q("21.50079 mm")),
    Sketcher.Constraint("DistanceX", 0, 2, -1, 1, Q("32.396038 mm")),
    Sketcher.Constraint("DistanceY", -1, 1, 3, 2, Q("19.63147 mm")),
    Sketcher.Constraint("DistanceX", 5, 2, -1, 1, Q("17.497591 mm")),
    Sketcher.Constraint("DistanceY", -1, 1, 7, 2, Q("19.632549 mm")),
    Sketcher.Constraint("DistanceY", 9, 3, 8, 2, Q("5.056672 mm")),
])
pad2 = body.newObject("PartDesign::Pad", "Pad001")
pad2.Profile = sketch4
pad2.Length = 5
pad2.Reversed = True

# Sketch on XY plane
sketch5 = body.newObject("Sketcher::SketchObject", "Sketch004")
sketch5.AttachmentSupport = (doc.getObject("XY_Plane"), [""])
sketch5.MapMode = "FlatFace"
sketch5.AttachmentOffset = App.Placement(App.Vector(0, 0, 5), App.Rotation())
sketch5.addGeometry([
    Part.Circle(App.Vector(0, -28, 0), App.Vector(0, 0, 1), 1),
    Part.Circle(App.Vector(20, -28, 0), App.Vector(0, 0, 1), 1),
    Part.Circle(App.Vector(-20, -28, 0), App.Vector(0, 0, 1), 1),
], False)
sketch5.addConstraint([
    Sketcher.Constraint("Equal", 0, 1),
    Sketcher.Constraint("Equal", 1, 2),
    Sketcher.Constraint("Diameter", 0, Q("2 mm")),
    Sketcher.Constraint("DistanceX", 2, 3, -1, 1, Q("19.985442 mm")),
    Sketcher.Constraint("DistanceY", 0, 3, 1, 3, Q("0.010371 mm")),
    Sketcher.Constraint("DistanceY", 2, 3, 0, 3, Q("0.010371 mm")),
    Sketcher.Constraint("DistanceX", -1, 1, 0, 3, Q("0.014556 mm")),
    Sketcher.Constraint("DistanceY", 0, 3, -1, 1, Q("27.999996 mm")),
    Sketcher.Constraint("DistanceX", -1, 1, 1, 3, Q("20.014553 mm")),
])
pocket3 = body.newObject("PartDesign::Pocket", "Pocket002")
pocket3.Profile = sketch5
pocket3.Length = 5

# Sketch on XY plane
sketch6 = body.newObject("Sketcher::SketchObject", "Sketch005")
sketch6.AttachmentSupport = (doc.getObject("XY_Plane"), [""])
sketch6.MapMode = "FlatFace"
sketch6.AttachmentOffset = App.Placement(App.Vector(0, 0, 5), App.Rotation())
sketch6.addGeometry([
    Part.ArcOfCircle(Part.Circle(App.Vector(-39.438757, 10.003945, 0), App.Vector(0, 0, 1), 22), math.radians(-71.329602), math.radians(4.191206)),
    Part.ArcOfCircle(Part.Circle(App.Vector(-17.20795, -4.748947, 0), App.Vector(0, 0, 1), 16.363329), math.radians(91.014225), math.radians(201.847379)),
    Part.ArcOfCircle(Part.Circle(App.Vector(39.438757, 10.003945, 0), App.Vector(0, 0, 1), 22), math.radians(175.808794), math.radians(251.329602)),
    Part.ArcOfCircle(Part.Circle(App.Vector(17.249321, -4.721493, 0), App.Vector(0, 0, 1), 16.335197), math.radians(-21.990761), math.radians(89.129158)),
], False)
sketch6.addConstraint([
    Sketcher.Constraint("Coincident", 0, 1, 1, 2),
    Sketcher.Constraint("Coincident", 1, 1, 0, 2),
    Sketcher.Constraint("Coincident", 2, 1, 3, 2),
    Sketcher.Constraint("Coincident", 3, 1, 2, 2),
    Sketcher.Constraint("Radius", 0, Q("22 mm")),
    Sketcher.Constraint("Radius", 2, Q("22 mm")),
    Sketcher.Constraint("Radius", 1, Q("16.363329 mm")),
    Sketcher.Constraint("Radius", 3, Q("16.335197 mm")),
    Sketcher.Constraint("DistanceX", 1, 3, -1, 1, Q("17.20795 mm")),
    Sketcher.Constraint("DistanceX", -1, 1, 3, 3, Q("17.249321 mm")),
    Sketcher.Constraint("DistanceX", 0, 1, -1, 1, Q("32.396038 mm")),
    Sketcher.Constraint("DistanceX", 1, 1, -1, 1, Q("17.497591 mm")),
    Sketcher.Constraint("DistanceX", -1, 1, 2, 1, Q("17.497591 mm")),
    Sketcher.Constraint("DistanceX", -1, 1, 3, 1, Q("32.396038 mm")),
    Sketcher.Constraint("DistanceY", 0, 1, 3, 3, Q("6.11683 mm")),
    Sketcher.Constraint("DistanceY", -1, 1, 0, 3, Q("10.003945 mm")),
])
pocket4 = body.newObject("PartDesign::Pocket", "Pocket003")
pocket4.Profile = sketch6
pocket4.Type = "ThroughAll"

doc.recompute()
